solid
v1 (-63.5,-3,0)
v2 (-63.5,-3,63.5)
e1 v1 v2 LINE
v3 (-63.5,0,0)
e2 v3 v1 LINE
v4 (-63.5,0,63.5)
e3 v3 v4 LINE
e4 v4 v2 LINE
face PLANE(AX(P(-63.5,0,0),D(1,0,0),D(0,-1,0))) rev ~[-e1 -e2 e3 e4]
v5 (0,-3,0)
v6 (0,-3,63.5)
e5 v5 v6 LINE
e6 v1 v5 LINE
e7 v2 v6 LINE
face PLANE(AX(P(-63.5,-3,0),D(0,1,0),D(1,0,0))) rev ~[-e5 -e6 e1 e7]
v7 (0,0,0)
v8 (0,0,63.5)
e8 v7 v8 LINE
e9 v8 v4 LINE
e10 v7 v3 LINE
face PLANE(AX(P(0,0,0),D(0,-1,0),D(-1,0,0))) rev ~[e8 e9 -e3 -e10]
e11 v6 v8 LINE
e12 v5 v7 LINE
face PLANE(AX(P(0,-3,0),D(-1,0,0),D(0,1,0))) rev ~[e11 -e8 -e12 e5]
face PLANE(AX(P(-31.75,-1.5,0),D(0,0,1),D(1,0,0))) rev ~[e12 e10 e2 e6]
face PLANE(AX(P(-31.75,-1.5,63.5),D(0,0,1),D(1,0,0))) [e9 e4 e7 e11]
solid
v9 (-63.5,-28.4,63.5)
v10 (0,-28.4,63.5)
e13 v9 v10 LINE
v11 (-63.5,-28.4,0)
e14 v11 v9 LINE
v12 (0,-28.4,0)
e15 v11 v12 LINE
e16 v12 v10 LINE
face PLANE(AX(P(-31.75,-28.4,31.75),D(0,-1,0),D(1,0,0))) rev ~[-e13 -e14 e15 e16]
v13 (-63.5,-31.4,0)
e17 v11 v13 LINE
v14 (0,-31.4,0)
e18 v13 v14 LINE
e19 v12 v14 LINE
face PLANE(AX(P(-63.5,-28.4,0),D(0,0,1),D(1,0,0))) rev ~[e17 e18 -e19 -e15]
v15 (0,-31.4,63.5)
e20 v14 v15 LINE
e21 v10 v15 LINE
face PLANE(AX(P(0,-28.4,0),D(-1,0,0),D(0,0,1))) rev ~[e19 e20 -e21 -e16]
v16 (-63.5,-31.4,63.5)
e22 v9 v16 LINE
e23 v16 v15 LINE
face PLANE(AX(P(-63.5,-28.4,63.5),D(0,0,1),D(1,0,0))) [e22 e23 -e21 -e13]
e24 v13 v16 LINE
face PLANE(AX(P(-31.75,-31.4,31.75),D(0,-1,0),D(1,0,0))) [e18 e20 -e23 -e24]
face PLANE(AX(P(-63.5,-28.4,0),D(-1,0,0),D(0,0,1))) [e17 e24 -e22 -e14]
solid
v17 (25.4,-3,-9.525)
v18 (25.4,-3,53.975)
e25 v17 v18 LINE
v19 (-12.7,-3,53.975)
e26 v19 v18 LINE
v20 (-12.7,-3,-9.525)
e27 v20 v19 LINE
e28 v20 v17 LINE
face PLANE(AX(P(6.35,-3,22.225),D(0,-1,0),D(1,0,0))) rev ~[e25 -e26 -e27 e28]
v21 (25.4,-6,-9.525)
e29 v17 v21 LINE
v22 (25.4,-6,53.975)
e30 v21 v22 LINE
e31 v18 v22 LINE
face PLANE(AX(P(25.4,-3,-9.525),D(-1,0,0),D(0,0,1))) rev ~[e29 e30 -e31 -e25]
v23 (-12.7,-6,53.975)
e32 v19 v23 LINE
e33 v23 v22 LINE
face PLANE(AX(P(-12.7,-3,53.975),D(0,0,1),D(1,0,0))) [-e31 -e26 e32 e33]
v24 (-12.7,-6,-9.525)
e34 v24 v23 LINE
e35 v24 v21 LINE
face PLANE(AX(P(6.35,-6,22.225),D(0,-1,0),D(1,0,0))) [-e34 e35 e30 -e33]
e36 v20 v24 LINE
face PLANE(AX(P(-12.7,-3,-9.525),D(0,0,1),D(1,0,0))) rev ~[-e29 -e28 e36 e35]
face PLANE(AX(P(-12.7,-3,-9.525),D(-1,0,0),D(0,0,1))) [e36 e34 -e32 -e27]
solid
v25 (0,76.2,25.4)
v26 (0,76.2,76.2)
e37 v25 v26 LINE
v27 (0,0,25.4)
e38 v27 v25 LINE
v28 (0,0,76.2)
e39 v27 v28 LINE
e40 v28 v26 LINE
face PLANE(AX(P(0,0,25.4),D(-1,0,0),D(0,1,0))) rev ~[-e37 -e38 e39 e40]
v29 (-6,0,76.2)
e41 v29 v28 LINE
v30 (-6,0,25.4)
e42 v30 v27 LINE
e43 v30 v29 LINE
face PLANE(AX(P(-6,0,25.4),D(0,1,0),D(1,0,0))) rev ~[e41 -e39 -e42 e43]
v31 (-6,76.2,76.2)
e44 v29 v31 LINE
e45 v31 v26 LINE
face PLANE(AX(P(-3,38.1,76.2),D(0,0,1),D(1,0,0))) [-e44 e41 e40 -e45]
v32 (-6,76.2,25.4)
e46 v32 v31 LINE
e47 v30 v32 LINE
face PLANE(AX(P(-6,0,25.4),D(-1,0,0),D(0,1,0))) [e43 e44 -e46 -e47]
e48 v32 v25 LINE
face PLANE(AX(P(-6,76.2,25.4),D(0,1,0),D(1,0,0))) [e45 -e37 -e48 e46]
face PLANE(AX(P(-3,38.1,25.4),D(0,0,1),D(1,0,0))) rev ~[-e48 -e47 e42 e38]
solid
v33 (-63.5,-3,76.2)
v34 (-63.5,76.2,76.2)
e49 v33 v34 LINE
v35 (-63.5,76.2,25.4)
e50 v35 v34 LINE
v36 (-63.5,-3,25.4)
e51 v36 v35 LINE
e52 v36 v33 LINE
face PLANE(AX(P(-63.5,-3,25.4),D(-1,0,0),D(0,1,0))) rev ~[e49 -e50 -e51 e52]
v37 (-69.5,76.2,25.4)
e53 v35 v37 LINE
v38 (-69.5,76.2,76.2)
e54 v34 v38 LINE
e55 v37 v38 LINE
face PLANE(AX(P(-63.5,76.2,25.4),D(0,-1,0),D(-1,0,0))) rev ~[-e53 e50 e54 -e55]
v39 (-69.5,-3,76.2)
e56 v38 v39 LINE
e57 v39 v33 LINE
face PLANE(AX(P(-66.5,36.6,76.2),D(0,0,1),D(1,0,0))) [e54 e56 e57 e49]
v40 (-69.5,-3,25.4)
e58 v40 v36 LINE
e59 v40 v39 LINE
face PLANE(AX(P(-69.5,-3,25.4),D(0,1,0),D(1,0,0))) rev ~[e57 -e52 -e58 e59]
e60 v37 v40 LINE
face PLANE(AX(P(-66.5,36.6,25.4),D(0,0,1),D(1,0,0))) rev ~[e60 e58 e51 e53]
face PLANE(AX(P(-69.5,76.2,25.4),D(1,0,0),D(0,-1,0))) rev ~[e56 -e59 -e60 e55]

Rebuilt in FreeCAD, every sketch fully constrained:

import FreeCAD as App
import Part
import Sketcher
Q = App.Units.Quantity

doc = App.newDocument("Part")
body = doc.addObject("PartDesign::Body", "Body")

# Sketch on XY plane
sketch1 = doc.addObject("Sketcher::SketchObject", "Sketch")
body.addObject(sketch1)
sketch1.AttachmentSupport = (doc.XY_Plane, [""])
sketch1.MapMode = "FlatFace"
sketch1.AttachmentOffset = App.Placement(App.Vector(0, 0, 1 * 25.4), App.Rotation())
sketch1.addGeometry([
    Part.LineSegment(App.Vector(-64, -3, 0), App.Vector(-64, 76, 0)),
    Part.LineSegment(App.Vector(-64, 76, 0), App.Vector(-70, 76, 0)),
    Part.LineSegment(App.Vector(-70, 76, 0), App.Vector(-70, -3, 0)),
    Part.LineSegment(App.Vector(-70, -3, 0), App.Vector(-64, -3, 0)),
], False)
sketch1.addConstraint([
    Sketcher.Constraint("Coincident", 0, 2, 1, 1),
    Sketcher.Constraint("Coincident", 1, 2, 2, 1),
    Sketcher.Constraint("Coincident", 2, 2, 3, 1),
    Sketcher.Constraint("Coincident", 3, 2, 0, 1),
    Sketcher.Constraint("Vertical", 0),
    Sketcher.Constraint("Horizontal", 1),
    Sketcher.Constraint("Vertical", 2),
    Sketcher.Constraint("Horizontal", 3),
    Sketcher.Constraint("DistanceY", -1, 1, 0, 2, Q("3 in")),
    Sketcher.Constraint("DistanceX", 0, 2, -1, 1, Q("2.5 in")),
    Sketcher.Constraint("DistanceX", 1, 2, 1, 1, 6.0),
    Sketcher.Constraint("DistanceY", 0, 1, 0, 2, 79.2),
])
pad1 = doc.addObject("PartDesign::Pad", "Pad")
body.addObject(pad1)
pad1.Profile = sketch1
pad1.Length = Q("2 in")
body2 = doc.addObject("PartDesign::Body", "Body001")

# Sketch on XY plane
sketch2 = doc.addObject("Sketcher::SketchObject", "Sketch001")
body2.addObject(sketch2)
sketch2.AttachmentSupport = (doc.getObject("XY_Plane001"), [""])
sketch2.MapMode = "FlatFace"
sketch2.AttachmentOffset = App.Placement(App.Vector(0, 0, 1 * 25.4), App.Rotation())
sketch2.addGeometry([
    Part.LineSegment(App.Vector(-6, 76, 0), App.Vector(-6, 0, 0)),
    Part.LineSegment(App.Vector(-6, 0, 0), App.Vector(0, 0, 0)),
    Part.LineSegment(App.Vector(0, 0, 0), App.Vector(0, 76, 0)),
    Part.LineSegment(App.Vector(0, 76, 0), App.Vector(-6, 76, 0)),
], False)
sketch2.addConstraint([
    Sketcher.Constraint("Coincident", 0, 2, 1, 1),
    Sketcher.Constraint("Coincident", 1, 2, 2, 1),
    Sketcher.Constraint("Coincident", 2, 2, 3, 1),
    Sketcher.Constraint("Coincident", 3, 2, 0, 1),
    Sketcher.Constraint("Vertical", 0),
    Sketcher.Constraint("Horizontal", 1),
    Sketcher.Constraint("Vertical", 2),
    Sketcher.Constraint("Horizontal", 3),
    Sketcher.Constraint("Coincident", 1, 2, -1, 1),
    Sketcher.Constraint("DistanceY", 0, 2, 0, 1, Q("3 in")),
    Sketcher.Constraint("DistanceX", 1, 1, 1, 2, 6.0),
])
pad2 = doc.addObject("PartDesign::Pad", "Pad001")
body2.addObject(pad2)
pad2.Profile = sketch2
pad2.Length = Q("2 in")
body3 = doc.addObject("PartDesign::Body", "Body002")

# Sketch on XY plane
sketch3 = doc.addObject("Sketcher::SketchObject", "Sketch002")
body3.addObject(sketch3)
sketch3.AttachmentSupport = (doc.getObject("XY_Plane002"), [""])
sketch3.MapMode = "FlatFace"
sketch3.addGeometry([
    Part.LineSegment(App.Vector(0, -3, 0), App.Vector(0, 0, 0)),
    Part.LineSegment(App.Vector(0, 0, 0), App.Vector(-63.5, 0, 0)),
    Part.LineSegment(App.Vector(-63.5, 0, 0), App.Vector(-63.5, -3, 0)),
    Part.LineSegment(App.Vector(-63.5, -3, 0), App.Vector(0, -3, 0)),
], False)
sketch3.addConstraint([
    Sketcher.Constraint("Coincident", 0, 2, 1, 1),
    Sketcher.Constraint("Coincident", 1, 2, 2, 1),
    Sketcher.Constraint("Coincident", 2, 2, 3, 1),
    Sketcher.Constraint("Coincident", 3, 2, 0, 1),
    Sketcher.Constraint("Vertical", 0),
    Sketcher.Constraint("Horizontal", 1),
    Sketcher.Constraint("Vertical", 2),
    Sketcher.Constraint("Horizontal", 3),
    Sketcher.Constraint("Coincident", 0, 2, -1, 1),
    Sketcher.Constraint("DistanceX", 1, 2, 1, 1, Q("2.5 in")),
    Sketcher.Constraint("DistanceY", 0, 1, 0, 2, 3.0),
])
pad3 = doc.addObject("PartDesign::Pad", "Pad002")
body3.addObject(pad3)
pad3.Profile = sketch3
pad3.Length = Q("2.5 in")
body4 = doc.addObject("PartDesign::Body", "Body003")

# Sketch on XZ plane
sketch4 = doc.addObject("Sketcher::SketchObject", "Sketch003")
body4.addObject(sketch4)
sketch4.AttachmentSupport = (doc.getObject("XZ_Plane003"), [""])
sketch4.MapMode = "FlatFace"
sketch4.AttachmentOffset = App.Placement(App.Vector(0, 0, 3), App.Rotation())
sketch4.addGeometry([
    Part.LineSegment(App.Vector(-13, 54, 0), App.Vector(-13, -10, 0)),
    Part.LineSegment(App.Vector(-13, -10, 0), App.Vector(25, -10, 0)),
    Part.LineSegment(App.Vector(25, -10, 0), App.Vector(25, 54, 0)),
    Part.LineSegment(App.Vector(25, 54, 0), App.Vector(-13, 54, 0)),
], False)
sketch4.addConstraint([
    Sketcher.Constraint("Coincident", 0, 2, 1, 1),
    Sketcher.Constraint("Coincident", 1, 2, 2, 1),
    Sketcher.Constraint("Coincident", 2, 2, 3, 1),
    Sketcher.Constraint("Coincident", 3, 2, 0, 1),
    Sketcher.Constraint("Vertical", 0),
    Sketcher.Constraint("Horizontal", 1),
    Sketcher.Constraint("Vertical", 2),
    Sketcher.Constraint("Horizontal", 3),
    Sketcher.Constraint("DistanceX", 1, 1, 1, 2, Q("1.5 in")),
    Sketcher.Constraint("DistanceY", 0, 2, 0, 1, Q("2.5 in")),
    Sketcher.Constraint("DistanceX", -1, 1, 1, 2, Q("1 in")),
    Sketcher.Constraint("DistanceY", 0, 2, -1, 1, Q("0.375 in")),
])
pad4 = doc.addObject("PartDesign::Pad", "Pad003")
body4.addObject(pad4)
pad4.Profile = sketch4
pad4.Length = 3
body5 = doc.addObject("PartDesign::Body", "Body004")

# Sketch on XZ plane
sketch5 = doc.addObject("Sketcher::SketchObject", "Sketch004")
body5.addObject(sketch5)
sketch5.AttachmentSupport = (doc.getObject("XZ_Plane004"), [""])
sketch5.MapMode = "FlatFace"
sketch5.AttachmentOffset = App.Placement(App.Vector(0, 0, 28.4), App.Rotation())
sketch5.addGeometry([
    Part.LineSegment(App.Vector(-64, 64, 0), App.Vector(-64, 0, 0)),
    Part.LineSegment(App.Vector(-64, 0, 0), App.Vector(0, 0, 0)),
    Part.LineSegment(App.Vector(0, 0, 0), App.Vector(0, 64, 0)),
    Part.LineSegment(App.Vector(0, 64, 0), App.Vector(-64, 64, 0)),
], False)
sketch5.addConstraint([
    Sketcher.Constraint("Coincident", 0, 2, 1, 1),
    Sketcher.Constraint("Coincident", 1, 2, 2, 1),
    Sketcher.Constraint("Coincident", 2, 2, 3, 1),
    Sketcher.Constraint("Coincident", 3, 2, 0, 1),
    Sketcher.Constraint("Vertical", 0),
    Sketcher.Constraint("Horizontal", 1),
    Sketcher.Constraint("Vertical", 2),
    Sketcher.Constraint("Horizontal", 3),
    Sketcher.Constraint("Coincident", 1, 2, -1, 1),
    Sketcher.Constraint("Equal", 3, 0),
    Sketcher.Constraint("DistanceX", 1, 1, 1, 2, Q("2.5 in")),
])
pad5 = doc.addObject("PartDesign::Pad", "Pad004")
body5.addObject(pad5)
pad5.Profile = sketch5
pad5.Length = 3

doc.recompute()
